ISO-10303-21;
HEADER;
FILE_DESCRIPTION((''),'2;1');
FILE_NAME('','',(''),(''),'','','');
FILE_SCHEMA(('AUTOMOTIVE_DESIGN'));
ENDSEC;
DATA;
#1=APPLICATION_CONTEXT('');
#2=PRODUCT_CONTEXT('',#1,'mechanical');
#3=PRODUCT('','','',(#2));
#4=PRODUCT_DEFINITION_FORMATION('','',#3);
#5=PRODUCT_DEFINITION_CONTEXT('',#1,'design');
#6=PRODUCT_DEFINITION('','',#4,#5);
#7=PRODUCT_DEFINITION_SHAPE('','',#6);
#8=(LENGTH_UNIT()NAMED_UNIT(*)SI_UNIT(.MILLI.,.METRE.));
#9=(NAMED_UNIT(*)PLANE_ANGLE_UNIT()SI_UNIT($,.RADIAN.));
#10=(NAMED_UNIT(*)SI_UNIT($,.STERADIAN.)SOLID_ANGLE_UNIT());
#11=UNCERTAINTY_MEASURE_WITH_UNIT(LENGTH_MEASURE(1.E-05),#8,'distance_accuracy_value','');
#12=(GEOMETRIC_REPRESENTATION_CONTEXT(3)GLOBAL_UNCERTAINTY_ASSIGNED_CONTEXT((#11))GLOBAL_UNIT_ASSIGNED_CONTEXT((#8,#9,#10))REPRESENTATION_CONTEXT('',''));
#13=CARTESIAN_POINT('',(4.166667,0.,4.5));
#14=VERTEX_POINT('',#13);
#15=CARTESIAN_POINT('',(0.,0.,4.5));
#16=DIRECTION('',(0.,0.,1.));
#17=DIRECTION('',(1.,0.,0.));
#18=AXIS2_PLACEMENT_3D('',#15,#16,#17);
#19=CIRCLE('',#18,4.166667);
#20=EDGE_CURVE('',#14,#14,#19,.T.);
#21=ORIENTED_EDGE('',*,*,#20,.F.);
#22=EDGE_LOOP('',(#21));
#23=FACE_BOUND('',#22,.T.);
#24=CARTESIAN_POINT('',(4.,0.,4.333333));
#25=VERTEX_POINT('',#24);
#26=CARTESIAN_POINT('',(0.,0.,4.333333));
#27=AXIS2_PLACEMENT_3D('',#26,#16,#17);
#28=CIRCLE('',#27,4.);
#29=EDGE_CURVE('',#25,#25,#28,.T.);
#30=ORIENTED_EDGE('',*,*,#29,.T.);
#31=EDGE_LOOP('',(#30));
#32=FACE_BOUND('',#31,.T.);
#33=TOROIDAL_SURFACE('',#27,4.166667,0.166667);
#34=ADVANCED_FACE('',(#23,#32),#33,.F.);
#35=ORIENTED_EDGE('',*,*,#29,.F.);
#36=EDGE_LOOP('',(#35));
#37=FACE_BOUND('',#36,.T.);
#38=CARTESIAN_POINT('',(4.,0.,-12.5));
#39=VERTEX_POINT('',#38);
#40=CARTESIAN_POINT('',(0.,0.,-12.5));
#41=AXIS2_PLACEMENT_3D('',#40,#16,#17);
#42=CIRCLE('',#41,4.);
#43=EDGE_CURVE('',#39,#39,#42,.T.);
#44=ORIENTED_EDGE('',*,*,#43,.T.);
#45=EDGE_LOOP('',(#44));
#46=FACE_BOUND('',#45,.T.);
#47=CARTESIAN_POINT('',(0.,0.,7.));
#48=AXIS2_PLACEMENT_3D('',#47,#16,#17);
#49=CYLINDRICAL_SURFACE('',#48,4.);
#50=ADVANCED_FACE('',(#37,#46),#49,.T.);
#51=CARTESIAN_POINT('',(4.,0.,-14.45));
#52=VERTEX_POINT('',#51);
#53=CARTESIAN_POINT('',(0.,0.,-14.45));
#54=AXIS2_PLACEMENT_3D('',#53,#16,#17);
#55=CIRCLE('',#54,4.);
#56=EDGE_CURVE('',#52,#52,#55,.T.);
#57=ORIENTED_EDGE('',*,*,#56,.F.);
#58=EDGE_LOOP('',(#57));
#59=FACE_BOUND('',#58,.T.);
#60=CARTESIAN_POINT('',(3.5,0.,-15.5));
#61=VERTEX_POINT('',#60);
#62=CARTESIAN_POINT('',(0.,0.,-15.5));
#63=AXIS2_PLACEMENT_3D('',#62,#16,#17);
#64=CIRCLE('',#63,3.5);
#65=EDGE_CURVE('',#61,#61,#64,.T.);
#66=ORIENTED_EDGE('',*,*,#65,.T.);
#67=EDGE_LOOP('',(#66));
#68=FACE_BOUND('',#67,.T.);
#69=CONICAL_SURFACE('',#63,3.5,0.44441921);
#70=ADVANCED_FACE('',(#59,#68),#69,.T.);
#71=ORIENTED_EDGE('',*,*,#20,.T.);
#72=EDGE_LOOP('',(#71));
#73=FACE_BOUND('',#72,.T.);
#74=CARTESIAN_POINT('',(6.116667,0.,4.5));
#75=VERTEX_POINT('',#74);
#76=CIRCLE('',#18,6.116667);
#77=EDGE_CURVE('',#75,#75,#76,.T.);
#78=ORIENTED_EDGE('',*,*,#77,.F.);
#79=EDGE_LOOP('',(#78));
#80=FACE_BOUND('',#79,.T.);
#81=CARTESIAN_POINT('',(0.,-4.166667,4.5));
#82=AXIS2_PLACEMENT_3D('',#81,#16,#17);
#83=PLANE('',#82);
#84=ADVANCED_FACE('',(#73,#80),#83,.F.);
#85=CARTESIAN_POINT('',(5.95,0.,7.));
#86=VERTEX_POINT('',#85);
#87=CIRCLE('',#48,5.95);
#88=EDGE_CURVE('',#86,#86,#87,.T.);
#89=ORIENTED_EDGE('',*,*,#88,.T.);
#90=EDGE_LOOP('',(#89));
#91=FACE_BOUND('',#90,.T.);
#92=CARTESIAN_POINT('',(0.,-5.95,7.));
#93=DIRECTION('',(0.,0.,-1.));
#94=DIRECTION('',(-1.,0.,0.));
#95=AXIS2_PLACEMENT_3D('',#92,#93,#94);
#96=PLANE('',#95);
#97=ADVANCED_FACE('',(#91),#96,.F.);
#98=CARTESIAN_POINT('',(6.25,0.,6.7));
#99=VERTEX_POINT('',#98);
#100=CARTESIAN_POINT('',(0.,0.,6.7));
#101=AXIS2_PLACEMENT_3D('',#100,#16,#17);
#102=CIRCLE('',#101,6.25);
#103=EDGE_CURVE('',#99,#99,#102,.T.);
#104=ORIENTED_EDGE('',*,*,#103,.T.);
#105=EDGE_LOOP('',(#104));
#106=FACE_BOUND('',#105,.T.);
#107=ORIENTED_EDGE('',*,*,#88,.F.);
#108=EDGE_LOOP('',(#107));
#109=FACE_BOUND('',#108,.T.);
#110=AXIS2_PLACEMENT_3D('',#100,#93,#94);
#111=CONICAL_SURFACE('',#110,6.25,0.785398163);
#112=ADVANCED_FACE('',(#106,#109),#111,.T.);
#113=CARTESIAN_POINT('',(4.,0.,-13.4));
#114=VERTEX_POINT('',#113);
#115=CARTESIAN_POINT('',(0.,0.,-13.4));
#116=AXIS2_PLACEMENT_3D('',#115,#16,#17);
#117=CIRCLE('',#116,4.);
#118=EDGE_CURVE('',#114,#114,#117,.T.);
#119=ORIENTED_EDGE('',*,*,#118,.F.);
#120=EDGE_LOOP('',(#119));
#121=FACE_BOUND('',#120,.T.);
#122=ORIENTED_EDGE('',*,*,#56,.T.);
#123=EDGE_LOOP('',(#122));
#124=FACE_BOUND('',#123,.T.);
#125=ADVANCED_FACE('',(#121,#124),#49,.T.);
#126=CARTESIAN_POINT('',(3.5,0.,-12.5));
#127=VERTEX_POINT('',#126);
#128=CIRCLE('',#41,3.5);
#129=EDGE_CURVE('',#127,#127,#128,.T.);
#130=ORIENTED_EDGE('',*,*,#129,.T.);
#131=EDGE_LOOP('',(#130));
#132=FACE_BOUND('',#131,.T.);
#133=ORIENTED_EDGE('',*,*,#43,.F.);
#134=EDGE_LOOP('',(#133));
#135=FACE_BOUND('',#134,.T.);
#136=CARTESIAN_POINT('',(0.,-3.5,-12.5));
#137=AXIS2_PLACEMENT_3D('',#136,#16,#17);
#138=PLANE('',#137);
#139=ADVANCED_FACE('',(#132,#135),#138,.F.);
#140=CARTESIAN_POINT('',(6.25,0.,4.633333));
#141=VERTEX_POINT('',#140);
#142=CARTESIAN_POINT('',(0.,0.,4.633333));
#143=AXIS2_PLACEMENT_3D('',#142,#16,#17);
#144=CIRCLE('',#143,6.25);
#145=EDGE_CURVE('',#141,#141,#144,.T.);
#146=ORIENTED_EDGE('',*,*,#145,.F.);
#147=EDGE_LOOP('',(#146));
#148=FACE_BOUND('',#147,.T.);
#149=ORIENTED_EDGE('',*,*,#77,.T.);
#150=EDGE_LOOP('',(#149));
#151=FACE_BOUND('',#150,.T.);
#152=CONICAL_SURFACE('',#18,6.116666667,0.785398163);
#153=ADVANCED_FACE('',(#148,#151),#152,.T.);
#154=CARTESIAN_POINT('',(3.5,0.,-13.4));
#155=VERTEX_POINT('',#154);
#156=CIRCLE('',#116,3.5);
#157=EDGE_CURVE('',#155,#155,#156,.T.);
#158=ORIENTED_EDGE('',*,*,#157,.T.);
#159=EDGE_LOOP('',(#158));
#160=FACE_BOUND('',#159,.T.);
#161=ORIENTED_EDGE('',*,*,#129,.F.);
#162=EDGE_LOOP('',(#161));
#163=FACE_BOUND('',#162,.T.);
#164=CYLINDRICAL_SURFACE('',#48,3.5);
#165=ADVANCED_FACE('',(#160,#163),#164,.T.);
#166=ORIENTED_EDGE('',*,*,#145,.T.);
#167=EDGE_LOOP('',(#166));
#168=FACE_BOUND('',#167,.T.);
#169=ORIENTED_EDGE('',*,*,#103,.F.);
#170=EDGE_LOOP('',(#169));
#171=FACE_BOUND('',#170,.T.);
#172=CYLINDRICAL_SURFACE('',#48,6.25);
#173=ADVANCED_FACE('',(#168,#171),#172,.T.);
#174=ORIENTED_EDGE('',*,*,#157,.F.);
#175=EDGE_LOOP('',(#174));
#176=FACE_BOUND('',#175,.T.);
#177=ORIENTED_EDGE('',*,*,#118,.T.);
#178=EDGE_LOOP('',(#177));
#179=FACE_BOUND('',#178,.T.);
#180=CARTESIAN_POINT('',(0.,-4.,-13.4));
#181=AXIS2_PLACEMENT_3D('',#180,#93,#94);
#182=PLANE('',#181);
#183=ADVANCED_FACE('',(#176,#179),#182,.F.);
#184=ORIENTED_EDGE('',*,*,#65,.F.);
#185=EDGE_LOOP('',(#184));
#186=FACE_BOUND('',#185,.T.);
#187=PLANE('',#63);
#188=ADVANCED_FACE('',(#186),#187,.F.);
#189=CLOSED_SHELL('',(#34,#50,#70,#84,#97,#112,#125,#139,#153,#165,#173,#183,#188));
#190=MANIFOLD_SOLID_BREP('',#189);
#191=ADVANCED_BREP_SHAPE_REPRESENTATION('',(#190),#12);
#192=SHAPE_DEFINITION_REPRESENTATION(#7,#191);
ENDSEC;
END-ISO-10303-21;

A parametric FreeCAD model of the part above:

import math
import FreeCAD as App
import Part
import Sketcher
from FreeCAD import Vector
Q = App.Units.Quantity

doc = App.newDocument("Part")
body = doc.addObject("PartDesign::Body", "Body")

sketch1 = body.newObject("Sketcher::SketchObject", "Sketch")
sketch1.AttachmentSupport = (doc.getObject("YZ_Plane"), [""])
sketch1.MapMode = "FlatFace"
sketch1.addGeometry(Part.LineSegment(Vector(0, -15.5, 0), Vector(3.5, -15.5, 0)), False)
sketch1.addGeometry(Part.LineSegment(Vector(3.5, -15.5, 0), Vector(4, -14.45, 0)), False)
sketch1.addGeometry(Part.LineSegment(Vector(4, -14.45, 0), Vector(4, -13.4, 0)), False)
sketch1.addGeometry(Part.LineSegment(Vector(4, -13.4, 0), Vector(3.5, -13.4, 0)), False)
sketch1.addGeometry(Part.LineSegment(Vector(3.5, -13.4, 0), Vector(3.5, -12.5, 0)), False)
sketch1.addGeometry(Part.LineSegment(Vector(3.5, -12.5, 0), Vector(4, -12.5, 0)), False)
sketch1.addGeometry(Part.LineSegment(Vector(4, -12.5, 0), Vector(4, 4.333333, 0)), False)
sketch1.addGeometry(Part.ArcOfCircle(Part.Circle(Vector(4.166667, 4.333333, 0), Vector(0, 0, 1), 0.166667), math.radians(89.999999), math.radians(180.000001)), False)
sketch1.addGeometry(Part.LineSegment(Vector(4.166667, 4.5, 0), Vector(6.116667, 4.5, 0)), False)
sketch1.addGeometry(Part.LineSegment(Vector(6.116667, 4.5, 0), Vector(6.25, 4.633333, 0)), False)
sketch1.addGeometry(Part.LineSegment(Vector(6.25, 4.633333, 0), Vector(6.25, 6.7, 0)), False)
sketch1.addGeometry(Part.LineSegment(Vector(6.25, 6.7, 0), Vector(5.95, 7, 0)), False)
sketch1.addGeometry(Part.LineSegment(Vector(5.95, 7, 0), Vector(0, 7, 0)), False)
sketch1.addGeometry(Part.LineSegment(Vector(0, 7, 0), Vector(0, -15.5, 0)), False)
sketch1.addConstraint(Sketcher.Constraint("Coincident", 0, 2, 1, 1))
sketch1.addConstraint(Sketcher.Constraint("Coincident", 1, 2, 2, 1))
sketch1.addConstraint(Sketcher.Constraint("Coincident", 2, 2, 3, 1))
sketch1.addConstraint(Sketcher.Constraint("Coincident", 3, 2, 4, 1))
sketch1.addConstraint(Sketcher.Constraint("Coincident", 4, 2, 5, 1))
sketch1.addConstraint(Sketcher.Constraint("Coincident", 5, 2, 6, 1))
sketch1.addConstraint(Sketcher.Constraint("Tangent", 6, 2, 7, 2))
sketch1.addConstraint(Sketcher.Constraint("Tangent", 7, 1, 8, 1))
sketch1.addConstraint(Sketcher.Constraint("Coincident", 8, 2, 9, 1))
sketch1.addConstraint(Sketcher.Constraint("Coincident", 9, 2, 10, 1))
sketch1.addConstraint(Sketcher.Constraint("Coincident", 10, 2, 11, 1))
sketch1.addConstraint(Sketcher.Constraint("Coincident", 11, 2, 12, 1))
sketch1.addConstraint(Sketcher.Constraint("Coincident", 12, 2, 13, 1))
sketch1.addConstraint(Sketcher.Constraint("Coincident", 13, 2, 0, 1))
sketch1.addConstraint(Sketcher.Constraint("Horizontal", 0))
sketch1.addConstraint(Sketcher.Constraint("Vertical", 2))
sketch1.addConstraint(Sketcher.Constraint("Horizontal", 3))
sketch1.addConstraint(Sketcher.Constraint("Vertical", 4))
sketch1.addConstraint(Sketcher.Constraint("Horizontal", 5))
sketch1.addConstraint(Sketcher.Constraint("Vertical", 6))
sketch1.addConstraint(Sketcher.Constraint("Horizontal", 8))
sketch1.addConstraint(Sketcher.Constraint("Vertical", 10))
sketch1.addConstraint(Sketcher.Constraint("Horizontal", 12))
sketch1.addConstraint(Sketcher.Constraint("Vertical", 13))
sketch1.addConstraint(Sketcher.Constraint("PointOnObject", 12, 2, -2))
sketch1.addConstraint(Sketcher.Constraint("Perpendicular", 9, 11))
sketch1.addConstraint(Sketcher.Constraint("Vertical", 0, 2, 3, 2))
sketch1.addConstraint(Sketcher.Constraint("Vertical", 2, 2, 5, 2))
sketch1.addConstraint(Sketcher.Constraint("Angle", 9, Q("45 deg")))
sketch1.addConstraint(Sketcher.Constraint("DistanceX", 0, 1, 0, 2, 3.5))
sketch1.addConstraint(Sketcher.Constraint("DistanceX", 3, 2, 3, 1, 0.5))
sketch1.addConstraint(Sketcher.Constraint("DistanceY", 4, 1, 4, 2, 0.9))
sketch1.addConstraint(Sketcher.Constraint("DistanceY", 13, 2, 13, 1, 22.5))
sketch1.addConstraint(Sketcher.Constraint("DistanceY", -1, 1, 11, 2, 7.0))
sketch1.addConstraint(Sketcher.Constraint("DistanceY", 0, 2, 4, 2, 3.0))
sketch1.addConstraint(Sketcher.Constraint("DistanceY", 5, 2, 7, 1, 17.0))
sketch1.addConstraint(Sketcher.Constraint("DistanceX", 8, 1, 8, 2, 1.95))
sketch1.addConstraint(Sketcher.Constraint("DistanceX", 12, 2, 12, 1, 5.95))
sketch1.addConstraint(Sketcher.Constraint("DistanceY", 2, 1, 2, 2, 1.05))
sketch1.addConstraint(Sketcher.Constraint("DistanceY", -1, 1, 10, 2, 6.7))
sketch1.addConstraint(Sketcher.Constraint("Radius", 7, 0.166667))
revolution = body.newObject("PartDesign::Revolution", "Revolution")
revolution.Profile = sketch1
revolution.ReferenceAxis = (sketch1, ["V_Axis"])
revolution.Angle = 360

doc.recompute()
